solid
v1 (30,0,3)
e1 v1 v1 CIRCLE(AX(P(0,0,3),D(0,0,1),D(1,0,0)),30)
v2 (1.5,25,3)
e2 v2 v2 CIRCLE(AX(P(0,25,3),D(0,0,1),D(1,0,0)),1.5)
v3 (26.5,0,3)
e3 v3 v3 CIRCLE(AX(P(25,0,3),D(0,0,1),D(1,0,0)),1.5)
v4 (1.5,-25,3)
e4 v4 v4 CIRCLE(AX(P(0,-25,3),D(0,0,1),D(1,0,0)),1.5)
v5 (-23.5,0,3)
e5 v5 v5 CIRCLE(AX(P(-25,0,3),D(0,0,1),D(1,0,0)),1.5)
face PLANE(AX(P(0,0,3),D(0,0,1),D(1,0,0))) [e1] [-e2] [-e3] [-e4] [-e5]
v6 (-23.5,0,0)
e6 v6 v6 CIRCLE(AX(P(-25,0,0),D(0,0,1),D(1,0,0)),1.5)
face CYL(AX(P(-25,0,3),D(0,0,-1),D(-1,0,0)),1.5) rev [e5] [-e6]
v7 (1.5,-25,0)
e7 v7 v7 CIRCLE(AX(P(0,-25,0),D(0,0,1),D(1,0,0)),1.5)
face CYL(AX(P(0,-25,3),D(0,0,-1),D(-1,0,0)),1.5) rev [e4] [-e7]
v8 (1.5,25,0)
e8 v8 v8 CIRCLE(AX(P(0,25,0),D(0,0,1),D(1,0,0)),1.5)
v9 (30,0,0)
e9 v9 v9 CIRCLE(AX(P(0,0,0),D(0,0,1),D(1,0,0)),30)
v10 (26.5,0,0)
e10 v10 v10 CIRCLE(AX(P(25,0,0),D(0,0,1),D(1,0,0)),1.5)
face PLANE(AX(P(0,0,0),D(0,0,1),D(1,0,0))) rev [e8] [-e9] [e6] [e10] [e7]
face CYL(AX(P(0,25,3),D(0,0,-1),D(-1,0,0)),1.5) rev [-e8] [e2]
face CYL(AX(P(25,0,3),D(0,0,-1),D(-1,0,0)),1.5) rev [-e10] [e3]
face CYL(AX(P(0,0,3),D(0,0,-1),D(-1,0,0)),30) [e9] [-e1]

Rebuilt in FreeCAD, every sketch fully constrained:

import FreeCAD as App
import Part
import Sketcher
from FreeCAD import Vector

doc = App.newDocument("Part")
body = doc.addObject("PartDesign::Body", "Body")

# Sketch on XY plane
sketch1 = body.newObject("Sketcher::SketchObject", "Sketch")
sketch1.AttachmentSupport = (doc.getObject("XY_Plane"), [""])
sketch1.MapMode = "FlatFace"
sketch1.addGeometry([
    Part.Circle(Vector(0, 0, 0), Vector(0, 0, 1), 30),  # 0
    Part.Circle(Vector(0, -25, 0), Vector(0, 0, 1), 1.5),  # 1
    Part.Circle(Vector(-25, 0, 0), Vector(0, 0, 1), 1.5),  # 2
    Part.Circle(Vector(25, 0, 0), Vector(0, 0, 1), 1.5),  # 3
    Part.Circle(Vector(0, 25, 0), Vector(0, 0, 1), 1.5),  # 4
], False)
sketch1.addConstraint([
    Sketcher.Constraint("Coincident", 0, 3, -1, 1),
    Sketcher.Constraint("Equal", 1, 2),
    Sketcher.Constraint("Equal", 2, 3),
    Sketcher.Constraint("Equal", 3, 4),
    Sketcher.Constraint("Symmetric", 2, 3, 3, 3, -1, 1),
    Sketcher.Constraint("Symmetric", 1, 3, 4, 3, -1, 1),
    Sketcher.Constraint("PointOnObject", 1, 3, -2),
    Sketcher.Constraint("PointOnObject", 2, 3, -1),
    Sketcher.Constraint("Diameter", 0, 60.0),
    Sketcher.Constraint("Diameter", 1, 3.0),
    Sketcher.Constraint("DistanceY", 1, 3, -1, 1, 25.0),
    Sketcher.Constraint("DistanceX", 2, 3, -1, 1, 25.0),
])
pad1 = body.newObject("PartDesign::Pad", "Pad")
pad1.Profile = sketch1
pad1.Length = 3

doc.recompute()
